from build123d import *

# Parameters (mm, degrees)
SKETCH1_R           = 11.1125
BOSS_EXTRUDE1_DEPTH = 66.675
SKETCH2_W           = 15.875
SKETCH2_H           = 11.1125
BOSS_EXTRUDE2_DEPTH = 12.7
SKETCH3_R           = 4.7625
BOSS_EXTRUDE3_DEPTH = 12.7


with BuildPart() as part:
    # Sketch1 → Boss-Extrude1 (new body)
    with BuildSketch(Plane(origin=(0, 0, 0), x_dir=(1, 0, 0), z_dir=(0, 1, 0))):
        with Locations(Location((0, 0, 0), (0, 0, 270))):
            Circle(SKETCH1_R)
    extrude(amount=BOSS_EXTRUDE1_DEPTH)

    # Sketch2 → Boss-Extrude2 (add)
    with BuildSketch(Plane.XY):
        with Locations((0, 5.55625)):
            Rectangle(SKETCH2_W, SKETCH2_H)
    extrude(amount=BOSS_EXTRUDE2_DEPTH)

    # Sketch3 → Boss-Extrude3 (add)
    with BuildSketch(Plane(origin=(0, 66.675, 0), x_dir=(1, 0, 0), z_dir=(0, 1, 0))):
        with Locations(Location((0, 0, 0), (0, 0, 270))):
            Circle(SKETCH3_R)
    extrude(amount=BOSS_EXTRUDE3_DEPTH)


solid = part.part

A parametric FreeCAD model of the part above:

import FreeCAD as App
import Part
import Sketcher
from FreeCAD import Vector
Q = App.Units.Quantity

doc = App.newDocument("Part")
body = doc.addObject("PartDesign::Body", "Body")

sketch1 = body.newObject("Sketcher::SketchObject", "Sketch")
sketch1.AttachmentSupport = (doc.getObject("XZ_Plane"), [""])
sketch1.MapMode = "FlatFace"
sketch1.addGeometry(Part.Circle(Vector(0, 0, 0), Vector(0, 0, 1), 11), False)
sketch1.addConstraint([
    Sketcher.Constraint("Coincident", 0, 3, -1, 1),
    Sketcher.Constraint("Diameter", 0, Q("0.875 in")),
])
pad1 = body.newObject("PartDesign::Pad", "Pad")
pad1.Profile = sketch1
pad1.Length = Q("2.625 in")
pad1.Reversed = True

sketch2 = body.newObject("Sketcher::SketchObject", "Sketch001")
sketch2.AttachmentSupport = (doc.getObject("XY_Plane"), [""])
sketch2.MapMode = "FlatFace"
sketch2.addGeometry([
    Part.LineSegment(Vector(-8, 11, 0), Vector(-8, 0, 0)),
    Part.LineSegment(Vector(-8, 0, 0), Vector(8, 0, 0)),
    Part.LineSegment(Vector(8, 0, 0), Vector(8, 11, 0)),
    Part.LineSegment(Vector(8, 11, 0), Vector(-8, 11, 0)),
], False)
sketch2.addConstraint([
    Sketcher.Constraint("Coincident", 0, 2, 1, 1),
    Sketcher.Constraint("Coincident", 1, 2, 2, 1),
    Sketcher.Constraint("Coincident", 2, 2, 3, 1),
    Sketcher.Constraint("Coincident", 3, 2, 0, 1),
    Sketcher.Constraint("Vertical", 0),
    Sketcher.Constraint("Horizontal", 1),
    Sketcher.Constraint("Vertical", 2),
    Sketcher.Constraint("Horizontal", 3),
    Sketcher.Constraint("Symmetric", 0, 2, 1, 2, -1, 1),
    Sketcher.Constraint("DistanceX", 1, 1, 1, 2, Q("0.625 in")),
    Sketcher.Constraint("DistanceY", 0, 2, 0, 1, Q("0.4375 in")),
])
pad2 = body.newObject("PartDesign::Pad", "Pad001")
pad2.Profile = sketch2
pad2.Length = Q("0.5 in")

sketch3 = body.newObject("Sketcher::SketchObject", "Sketch002")
sketch3.AttachmentSupport = (doc.getObject("XZ_Plane"), [""])
sketch3.MapMode = "FlatFace"
sketch3.AttachmentOffset = App.Placement(Vector(0, 0, -2.625 * 25.4), App.Rotation())
sketch3.addGeometry(Part.Circle(Vector(0, 0, 0), Vector(0, 0, 1), 4.8), False)
sketch3.addConstraint([
    Sketcher.Constraint("Coincident", 0, 3, -1, 1),
    Sketcher.Constraint("Diameter", 0, Q("0.375 in")),
])
pad3 = body.newObject("PartDesign::Pad", "Pad002")
pad3.Profile = sketch3
pad3.Length = Q("0.5 in")
pad3.Reversed = True

doc.recompute()
